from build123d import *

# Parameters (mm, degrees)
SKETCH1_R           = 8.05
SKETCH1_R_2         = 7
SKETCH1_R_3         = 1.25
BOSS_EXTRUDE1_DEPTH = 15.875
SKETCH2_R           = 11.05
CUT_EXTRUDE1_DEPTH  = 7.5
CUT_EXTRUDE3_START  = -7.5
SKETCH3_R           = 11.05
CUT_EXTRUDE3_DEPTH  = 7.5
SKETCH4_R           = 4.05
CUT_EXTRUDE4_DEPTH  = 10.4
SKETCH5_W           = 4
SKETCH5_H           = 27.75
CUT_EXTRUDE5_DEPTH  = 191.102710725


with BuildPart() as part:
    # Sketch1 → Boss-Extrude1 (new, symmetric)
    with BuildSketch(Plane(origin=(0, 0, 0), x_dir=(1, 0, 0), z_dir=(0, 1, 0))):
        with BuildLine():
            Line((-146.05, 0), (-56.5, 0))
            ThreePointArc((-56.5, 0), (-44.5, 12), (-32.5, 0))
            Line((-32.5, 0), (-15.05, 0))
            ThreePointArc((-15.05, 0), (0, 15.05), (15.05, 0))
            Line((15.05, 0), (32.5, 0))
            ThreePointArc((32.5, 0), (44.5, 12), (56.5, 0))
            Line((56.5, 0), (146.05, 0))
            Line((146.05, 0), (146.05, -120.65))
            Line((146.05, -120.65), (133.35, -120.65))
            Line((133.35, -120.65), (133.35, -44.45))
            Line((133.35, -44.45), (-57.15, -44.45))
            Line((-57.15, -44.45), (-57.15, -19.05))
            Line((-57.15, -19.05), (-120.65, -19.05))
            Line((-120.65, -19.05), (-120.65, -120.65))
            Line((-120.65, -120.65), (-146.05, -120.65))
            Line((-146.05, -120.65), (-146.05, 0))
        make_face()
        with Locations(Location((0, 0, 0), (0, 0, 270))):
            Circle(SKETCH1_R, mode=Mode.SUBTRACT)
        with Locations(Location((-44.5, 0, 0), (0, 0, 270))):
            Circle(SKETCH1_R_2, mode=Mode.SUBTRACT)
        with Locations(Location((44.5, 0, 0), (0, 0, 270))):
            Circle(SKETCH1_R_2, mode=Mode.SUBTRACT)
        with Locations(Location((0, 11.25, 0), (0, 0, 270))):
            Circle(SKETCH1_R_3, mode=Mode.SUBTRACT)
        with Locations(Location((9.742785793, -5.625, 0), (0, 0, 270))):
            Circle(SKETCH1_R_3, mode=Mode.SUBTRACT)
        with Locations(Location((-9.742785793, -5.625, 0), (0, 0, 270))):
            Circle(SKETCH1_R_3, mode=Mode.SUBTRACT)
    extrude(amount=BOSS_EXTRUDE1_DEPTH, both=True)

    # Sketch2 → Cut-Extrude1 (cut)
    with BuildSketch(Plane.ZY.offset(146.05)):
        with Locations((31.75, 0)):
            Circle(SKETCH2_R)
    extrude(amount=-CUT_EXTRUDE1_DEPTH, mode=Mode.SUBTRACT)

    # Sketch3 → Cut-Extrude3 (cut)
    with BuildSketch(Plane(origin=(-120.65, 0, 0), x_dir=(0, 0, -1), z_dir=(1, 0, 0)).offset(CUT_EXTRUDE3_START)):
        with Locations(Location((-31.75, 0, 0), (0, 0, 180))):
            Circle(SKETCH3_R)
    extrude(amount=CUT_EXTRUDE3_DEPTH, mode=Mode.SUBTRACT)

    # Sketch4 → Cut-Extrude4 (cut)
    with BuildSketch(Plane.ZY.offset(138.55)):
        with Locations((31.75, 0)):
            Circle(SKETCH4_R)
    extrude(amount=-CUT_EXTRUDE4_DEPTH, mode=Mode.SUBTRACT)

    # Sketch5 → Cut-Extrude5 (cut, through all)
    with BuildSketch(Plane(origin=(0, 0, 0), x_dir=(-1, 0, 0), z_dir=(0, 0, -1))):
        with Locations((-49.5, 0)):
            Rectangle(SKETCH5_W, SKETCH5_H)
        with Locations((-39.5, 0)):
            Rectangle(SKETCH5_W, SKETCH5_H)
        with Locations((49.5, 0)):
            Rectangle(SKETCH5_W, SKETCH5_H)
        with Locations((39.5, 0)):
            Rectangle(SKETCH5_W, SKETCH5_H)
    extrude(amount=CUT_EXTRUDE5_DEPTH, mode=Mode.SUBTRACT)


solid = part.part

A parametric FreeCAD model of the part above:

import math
import FreeCAD as App
import Part
import Sketcher

V = App.Vector

doc = App.newDocument("Part")
params = doc.addObject("Spreadsheet::Sheet", "Params")
for row, (alias, value) in enumerate([
    ("sketch1_diameter", "14 mm"),
    ("sketch1_radius", "12 mm"),
    ("sketch1_diameter2", "2.5 mm"),
    ("sketch1_diameter3", "16.1 mm"),
    ("sketch1_radius2", "15.05 mm"),
    ("pad1_length", "31.75 mm"),
    ("sketch2_diameter", "22.1 mm"),
    ("pocket1_length", "7.5 mm"),
    ("sketch3_diameter", "22.1 mm"),
    ("pocket2_length", "7.5 mm"),
    ("sketch4_diameter", "8.1 mm"),
    ("pocket3_length", "10.4 mm"),
    ("sketch5_width", "4 mm"),
    ("sketch5_height", "27.75 mm"),
], start=1):
    params.set(f"A{row}", alias)
    params.set(f"B{row}", "=" + value)
    params.setAlias(f"B{row}", alias)

body = doc.addObject("PartDesign::Body", "Body")

# Sketch on XZ plane
sketch1 = body.newObject("Sketcher::SketchObject", "Sketch")
sketch1.AttachmentSupport = (doc.getObject("XZ_Plane"), [""])
sketch1.MapMode = "FlatFace"
sketch1.addGeometry(Part.LineSegment(V(-56.5, 0, 0), V(-146.1, 0, 0)), False)
sketch1.addGeometry(Part.LineSegment(V(-146.1, 0, 0), V(-146.1, 120.7, 0)), False)
sketch1.addGeometry(Part.LineSegment(V(-146.1, 120.7, 0), V(-120.7, 120.7, 0)), False)
sketch1.addGeometry(Part.LineSegment(V(-120.7, 120.7, 0), V(-120.7, 19.1, 0)), False)
sketch1.addGeometry(Part.LineSegment(V(-120.7, 19.1, 0), V(-57.1, 19.1, 0)), False)
sketch1.addGeometry(Part.LineSegment(V(-57.1, 19.1, 0), V(-57.1, 44.5, 0)), False)
sketch1.addGeometry(Part.LineSegment(V(-57.1, 44.5, 0), V(133.3, 44.5, 0)), False)
sketch1.addGeometry(Part.LineSegment(V(133.3, 44.5, 0), V(133.3, 120.7, 0)), False)
sketch1.addGeometry(Part.LineSegment(V(133.3, 120.7, 0), V(146.1, 120.7, 0)), False)
sketch1.addGeometry(Part.LineSegment(V(146.1, 120.7, 0), V(146.1, 0, 0)), False)
sketch1.addGeometry(Part.LineSegment(V(146.1, 0, 0), V(56.5, 0, 0)), False)
sketch1.addGeometry(Part.ArcOfCircle(Part.Circle(V(44.5, 0, 0), V(0, 0, 1), 12), math.radians(180), math.radians(360)), False)
sketch1.addGeometry(Part.LineSegment(V(32.5, 0, 0), V(15.1, 0, 0)), False)
sketch1.addGeometry(Part.ArcOfCircle(Part.Circle(V(0, 0, 0), V(0, 0, 1), 15.1), math.radians(180), math.radians(360)), False)
sketch1.addGeometry(Part.LineSegment(V(-15.1, 0, 0), V(-32.5, 0, 0)), False)
sketch1.addGeometry(Part.ArcOfCircle(Part.Circle(V(-44.5, 0, 0), V(0, 0, 1), 12), math.radians(180), math.radians(360)), False)
sketch1.addGeometry(Part.Circle(V(9.7, 5.6, 0), V(0, 0, 1), 1.2), False)
sketch1.addGeometry(Part.Circle(V(44.5, 0, 0), V(0, 0, 1), 7), False)
sketch1.addGeometry(Part.Circle(V(0, 0, 0), V(0, 0, 1), 8.1), False)
sketch1.addGeometry(Part.Circle(V(-9.7, 5.6, 0), V(0, 0, 1), 1.2), False)
sketch1.addGeometry(Part.Circle(V(-44.5, 0, 0), V(0, 0, 1), 7), False)
sketch1.addGeometry(Part.Circle(V(0, -11.2, 0), V(0, 0, 1), 1.2), False)
sketch1.addConstraint(Sketcher.Constraint("Coincident", 0, 2, 1, 1))
sketch1.addConstraint(Sketcher.Constraint("Coincident", 1, 2, 2, 1))
sketch1.addConstraint(Sketcher.Constraint("Coincident", 2, 2, 3, 1))
sketch1.addConstraint(Sketcher.Constraint("Coincident", 3, 2, 4, 1))
sketch1.addConstraint(Sketcher.Constraint("Coincident", 4, 2, 5, 1))
sketch1.addConstraint(Sketcher.Constraint("Coincident", 5, 2, 6, 1))
sketch1.addConstraint(Sketcher.Constraint("Coincident", 6, 2, 7, 1))
sketch1.addConstraint(Sketcher.Constraint("Coincident", 7, 2, 8, 1))
sketch1.addConstraint(Sketcher.Constraint("Coincident", 8, 2, 9, 1))
sketch1.addConstraint(Sketcher.Constraint("Coincident", 9, 2, 10, 1))
sketch1.addConstraint(Sketcher.Constraint("Coincident", 10, 2, 11, 2))
sketch1.addConstraint(Sketcher.Constraint("Coincident", 11, 1, 12, 1))
sketch1.addConstraint(Sketcher.Constraint("Coincident", 12, 2, 13, 2))
sketch1.addConstraint(Sketcher.Constraint("Coincident", 13, 1, 14, 1))
sketch1.addConstraint(Sketcher.Constraint("Coincident", 14, 2, 15, 2))
sketch1.addConstraint(Sketcher.Constraint("Coincident", 15, 1, 0, 1))
sketch1.addConstraint(Sketcher.Constraint("Horizontal", 0))
sketch1.addConstraint(Sketcher.Constraint("Vertical", 1))
sketch1.addConstraint(Sketcher.Constraint("Horizontal", 2))
sketch1.addConstraint(Sketcher.Constraint("Vertical", 3))
sketch1.addConstraint(Sketcher.Constraint("Horizontal", 4))
sketch1.addConstraint(Sketcher.Constraint("Vertical", 5))
sketch1.addConstraint(Sketcher.Constraint("Horizontal", 6))
sketch1.addConstraint(Sketcher.Constraint("Vertical", 7))
sketch1.addConstraint(Sketcher.Constraint("Horizontal", 8))
sketch1.addConstraint(Sketcher.Constraint("Vertical", 9))
sketch1.addConstraint(Sketcher.Constraint("Horizontal", 10))
sketch1.addConstraint(Sketcher.Constraint("Horizontal", 12))
sketch1.addConstraint(Sketcher.Constraint("Horizontal", 14))
sketch1.addConstraint(Sketcher.Constraint("Coincident", 13, 3, -1, 1))
sketch1.addConstraint(Sketcher.Constraint("Coincident", 18, 3, -1, 1))
sketch1.addConstraint(Sketcher.Constraint("Coincident", 17, 3, 11, 3))
sketch1.addConstraint(Sketcher.Constraint("Coincident", 20, 3, 15, 3))
sketch1.addConstraint(Sketcher.Constraint("Equal", 11, 15))
sketch1.addConstraint(Sketcher.Constraint("Equal", 16, 19))
sketch1.addConstraint(Sketcher.Constraint("Equal", 17, 20))
sketch1.addConstraint(Sketcher.Constraint("Equal", 19, 21))
sketch1.addConstraint(Sketcher.Constraint("Symmetric", 11, 3, 15, 3, -1, 1))
sketch1.addConstraint(Sketcher.Constraint("Symmetric", 0, 2, 9, 2, -1, 1))
sketch1.addConstraint(Sketcher.Constraint("Symmetric", 16, 3, 19, 3, -2))
sketch1.addConstraint(Sketcher.Constraint("PointOnObject", 11, 3, -1))
sketch1.addConstraint(Sketcher.Constraint("PointOnObject", 21, 3, -2))
sketch1.addConstraint(Sketcher.Constraint("PointOnObject", 0, 2, -1))
sketch1.addConstraint(Sketcher.Constraint("PointOnObject", 11, 1, -1))
sketch1.addConstraint(Sketcher.Constraint("PointOnObject", 13, 1, -1))
sketch1.addConstraint(Sketcher.Constraint("Horizontal", 2, 2, 7, 2))
sketch1.addConstraint(Sketcher.Constraint("Equal", 2, 5))
sketch1.addConstraint(Sketcher.Constraint("Diameter", 17, 14.0))
sketch1.addConstraint(Sketcher.Constraint("Radius", 11, 12.0))
sketch1.addConstraint(Sketcher.Constraint("Diameter", 16, 2.5))
sketch1.addConstraint(Sketcher.Constraint("Diameter", 18, 16.1))
sketch1.addConstraint(Sketcher.Constraint("Radius", 13, 15.05))
sketch1.addConstraint(Sketcher.Constraint("DistanceX", 2, 1, 2, 2, 25.4))
sketch1.addConstraint(Sketcher.Constraint("DistanceX", 4, 1, 4, 2, 63.5))
sketch1.addConstraint(Sketcher.Constraint("DistanceX", 6, 1, 6, 2, 190.5))
sketch1.addConstraint(Sketcher.Constraint("DistanceX", 8, 1, 8, 2, 12.7))
sketch1.addConstraint(Sketcher.Constraint("DistanceY", 3, 2, 3, 1, 101.6))
sketch1.addConstraint(Sketcher.Constraint("DistanceX", 15, 3, 11, 3, 89.0))
sketch1.addConstraint(Sketcher.Constraint("DistanceY", 1, 1, 1, 2, 120.65))
sketch1.addConstraint(Sketcher.Constraint("DistanceY", 21, 3, -1, 1, 11.25))
sketch1.addConstraint(Sketcher.Constraint("DistanceY", -1, 1, 16, 3, 5.625))
sketch1.addConstraint(Sketcher.Constraint("DistanceX", 19, 3, 16, 3, 19.485572))
sketch1.setExpression("Constraints[47]", "Params.sketch1_diameter")
sketch1.setExpression("Constraints[48]", "Params.sketch1_radius")
sketch1.setExpression("Constraints[49]", "Params.sketch1_diameter2")
sketch1.setExpression("Constraints[50]", "Params.sketch1_diameter3")
sketch1.setExpression("Constraints[51]", "Params.sketch1_radius2")
pad1 = body.newObject("PartDesign::Pad", "Pad")
pad1.Profile = sketch1
pad1.setExpression("Length", "Params.pad1_length")
pad1.Midplane = True

# Sketch on YZ plane
sketch2 = body.newObject("Sketcher::SketchObject", "Sketch001")
sketch2.AttachmentSupport = (doc.getObject("YZ_Plane"), [""])
sketch2.MapMode = "FlatFace"
sketch2.AttachmentOffset = App.Placement(V(0, 0, -146.05), App.Rotation())
sketch2.addGeometry(Part.Circle(V(0, 32, 0), V(0, 0, 1), 11), False)
sketch2.addConstraint(Sketcher.Constraint("PointOnObject", 0, 3, -2))
sketch2.addConstraint(Sketcher.Constraint("Diameter", 0, 22.1))
sketch2.addConstraint(Sketcher.Constraint("DistanceY", -1, 1, 0, 3, 31.75))
sketch2.setExpression("Constraints[1]", "Params.sketch2_diameter")
pocket1 = body.newObject("PartDesign::Pocket", "Pocket")
pocket1.Profile = sketch2
pocket1.setExpression("Length", "Params.pocket1_length")
pocket1.Reversed = True

# Sketch on YZ plane
sketch3 = body.newObject("Sketcher::SketchObject", "Sketch002")
sketch3.AttachmentSupport = (doc.getObject("YZ_Plane"), [""])
sketch3.MapMode = "FlatFace"
sketch3.AttachmentOffset = App.Placement(V(0, 0, -128.15), App.Rotation())
sketch3.addGeometry(Part.Circle(V(0, 32, 0), V(0, 0, 1), 11), False)
sketch3.addConstraint(Sketcher.Constraint("PointOnObject", 0, 3, -2))
sketch3.addConstraint(Sketcher.Constraint("Diameter", 0, 22.1))
sketch3.addConstraint(Sketcher.Constraint("DistanceY", -1, 1, 0, 3, 31.75))
sketch3.setExpression("Constraints[1]", "Params.sketch3_diameter")
pocket2 = body.newObject("PartDesign::Pocket", "Pocket001")
pocket2.Profile = sketch3
pocket2.setExpression("Length", "Params.pocket2_length")
pocket2.Reversed = True

# Sketch on YZ plane
sketch4 = body.newObject("Sketcher::SketchObject", "Sketch003")
sketch4.AttachmentSupport = (doc.getObject("YZ_Plane"), [""])
sketch4.MapMode = "FlatFace"
sketch4.AttachmentOffset = App.Placement(V(0, 0, -138.55), App.Rotation())
sketch4.addGeometry(Part.Circle(V(0, 31.8, 0), V(0, 0, 1), 4), False)
sketch4.addConstraint(Sketcher.Constraint("PointOnObject", 0, 3, -2))
sketch4.addConstraint(Sketcher.Constraint("Diameter", 0, 8.1))
sketch4.addConstraint(Sketcher.Constraint("DistanceY", -1, 1, 0, 3, 31.75))
sketch4.setExpression("Constraints[1]", "Params.sketch4_diameter")
pocket3 = body.newObject("PartDesign::Pocket", "Pocket002")
pocket3.Profile = sketch4
pocket3.setExpression("Length", "Params.pocket3_length")
pocket3.Reversed = True

# Sketch on XY plane
sketch5 = body.newObject("Sketcher::SketchObject", "Sketch004")
sketch5.AttachmentSupport = (doc.getObject("XY_Plane"), [""])
sketch5.MapMode = "FlatFace"
sketch5.addGeometry(Part.LineSegment(V(51.5, 13.9, 0), V(51.5, -13.9, 0)), False)
sketch5.addGeometry(Part.LineSegment(V(51.5, -13.9, 0), V(47.5, -13.9, 0)), False)
sketch5.addGeometry(Part.LineSegment(V(47.5, -13.9, 0), V(47.5, 13.9, 0)), False)
sketch5.addGeometry(Part.LineSegment(V(47.5, 13.9, 0), V(51.5, 13.9, 0)), False)
sketch5.addGeometry(Part.LineSegment(V(41.5, 13.9, 0), V(41.5, -13.9, 0)), False)
sketch5.addGeometry(Part.LineSegment(V(41.5, -13.9, 0), V(37.5, -13.9, 0)), False)
sketch5.addGeometry(Part.LineSegment(V(37.5, -13.9, 0), V(37.5, 13.9, 0)), False)
sketch5.addGeometry(Part.LineSegment(V(37.5, 13.9, 0), V(41.5, 13.9, 0)), False)
sketch5.addGeometry(Part.LineSegment(V(-47.5, 13.9, 0), V(-47.5, -13.9, 0)), False)
sketch5.addGeometry(Part.LineSegment(V(-47.5, -13.9, 0), V(-51.5, -13.9, 0)), False)
sketch5.addGeometry(Part.LineSegment(V(-51.5, -13.9, 0), V(-51.5, 13.9, 0)), False)
sketch5.addGeometry(Part.LineSegment(V(-51.5, 13.9, 0), V(-47.5, 13.9, 0)), False)
sketch5.addGeometry(Part.LineSegment(V(-37.5, 13.9, 0), V(-37.5, -13.9, 0)), False)
sketch5.addGeometry(Part.LineSegment(V(-37.5, -13.9, 0), V(-41.5, -13.9, 0)), False)
sketch5.addGeometry(Part.LineSegment(V(-41.5, -13.9, 0), V(-41.5, 13.9, 0)), False)
sketch5.addGeometry(Part.LineSegment(V(-41.5, 13.9, 0), V(-37.5, 13.9, 0)), False)
sketch5.addConstraint(Sketcher.Constraint("Coincident", 0, 2, 1, 1))
sketch5.addConstraint(Sketcher.Constraint("Coincident", 1, 2, 2, 1))
sketch5.addConstraint(Sketcher.Constraint("Coincident", 2, 2, 3, 1))
sketch5.addConstraint(Sketcher.Constraint("Coincident", 3, 2, 0, 1))
sketch5.addConstraint(Sketcher.Constraint("Coincident", 4, 2, 5, 1))
sketch5.addConstraint(Sketcher.Constraint("Coincident", 5, 2, 6, 1))
sketch5.addConstraint(Sketcher.Constraint("Coincident", 6, 2, 7, 1))
sketch5.addConstraint(Sketcher.Constraint("Coincident", 7, 2, 4, 1))
sketch5.addConstraint(Sketcher.Constraint("Coincident", 8, 2, 9, 1))
sketch5.addConstraint(Sketcher.Constraint("Coincident", 9, 2, 10, 1))
sketch5.addConstraint(Sketcher.Constraint("Coincident", 10, 2, 11, 1))
sketch5.addConstraint(Sketcher.Constraint("Coincident", 11, 2, 8, 1))
sketch5.addConstraint(Sketcher.Constraint("Coincident", 12, 2, 13, 1))
sketch5.addConstraint(Sketcher.Constraint("Coincident", 13, 2, 14, 1))
sketch5.addConstraint(Sketcher.Constraint("Coincident", 14, 2, 15, 1))
sketch5.addConstraint(Sketcher.Constraint("Coincident", 15, 2, 12, 1))
sketch5.addConstraint(Sketcher.Constraint("Vertical", 0))
sketch5.addConstraint(Sketcher.Constraint("Horizontal", 1))
sketch5.addConstraint(Sketcher.Constraint("Vertical", 2))
sketch5.addConstraint(Sketcher.Constraint("Horizontal", 3))
sketch5.addConstraint(Sketcher.Constraint("Vertical", 4))
sketch5.addConstraint(Sketcher.Constraint("Horizontal", 5))
sketch5.addConstraint(Sketcher.Constraint("Vertical", 6))
sketch5.addConstraint(Sketcher.Constraint("Horizontal", 7))
sketch5.addConstraint(Sketcher.Constraint("Vertical", 8))
sketch5.addConstraint(Sketcher.Constraint("Horizontal", 9))
sketch5.addConstraint(Sketcher.Constraint("Vertical", 10))
sketch5.addConstraint(Sketcher.Constraint("Horizontal", 11))
sketch5.addConstraint(Sketcher.Constraint("Vertical", 12))
sketch5.addConstraint(Sketcher.Constraint("Horizontal", 13))
sketch5.addConstraint(Sketcher.Constraint("Vertical", 14))
sketch5.addConstraint(Sketcher.Constraint("Horizontal", 15))
sketch5.addConstraint(Sketcher.Constraint("Symmetric", 2, 2, 8, 2, -1, 1))
sketch5.addConstraint(Sketcher.Constraint("Symmetric", 0, 2, 10, 2, -1, 1))
sketch5.addConstraint(Sketcher.Constraint("Symmetric", 6, 2, 12, 2, -1, 1))
sketch5.addConstraint(Sketcher.Constraint("Symmetric", 4, 2, 14, 2, -1, 1))
sketch5.addConstraint(Sketcher.Constraint("Horizontal", 1, 2, 4, 2))
sketch5.addConstraint(Sketcher.Constraint("Horizontal", 3, 2, 6, 2))
sketch5.addConstraint(Sketcher.Constraint("Horizontal", 5, 2, 8, 2))
sketch5.addConstraint(Sketcher.Constraint("Equal", 3, 5))
sketch5.addConstraint(Sketcher.Constraint("DistanceX", 1, 2, 1, 1, 4.0))
sketch5.addConstraint(Sketcher.Constraint("DistanceX", 4, 2, 1, 2, 6.0))
sketch5.addConstraint(Sketcher.Constraint("DistanceX", 8, 2, 5, 2, 85.0))
sketch5.addConstraint(Sketcher.Constraint("DistanceY", 0, 2, 0, 1, 27.75))
sketch5.setExpression("Constraints[40]", "Params.sketch5_width")
sketch5.setExpression("Constraints[43]", "Params.sketch5_height")
pocket4 = body.newObject("PartDesign::Pocket", "Pocket003")
pocket4.Profile = sketch5
pocket4.Type = "ThroughAll"

doc.recompute()
